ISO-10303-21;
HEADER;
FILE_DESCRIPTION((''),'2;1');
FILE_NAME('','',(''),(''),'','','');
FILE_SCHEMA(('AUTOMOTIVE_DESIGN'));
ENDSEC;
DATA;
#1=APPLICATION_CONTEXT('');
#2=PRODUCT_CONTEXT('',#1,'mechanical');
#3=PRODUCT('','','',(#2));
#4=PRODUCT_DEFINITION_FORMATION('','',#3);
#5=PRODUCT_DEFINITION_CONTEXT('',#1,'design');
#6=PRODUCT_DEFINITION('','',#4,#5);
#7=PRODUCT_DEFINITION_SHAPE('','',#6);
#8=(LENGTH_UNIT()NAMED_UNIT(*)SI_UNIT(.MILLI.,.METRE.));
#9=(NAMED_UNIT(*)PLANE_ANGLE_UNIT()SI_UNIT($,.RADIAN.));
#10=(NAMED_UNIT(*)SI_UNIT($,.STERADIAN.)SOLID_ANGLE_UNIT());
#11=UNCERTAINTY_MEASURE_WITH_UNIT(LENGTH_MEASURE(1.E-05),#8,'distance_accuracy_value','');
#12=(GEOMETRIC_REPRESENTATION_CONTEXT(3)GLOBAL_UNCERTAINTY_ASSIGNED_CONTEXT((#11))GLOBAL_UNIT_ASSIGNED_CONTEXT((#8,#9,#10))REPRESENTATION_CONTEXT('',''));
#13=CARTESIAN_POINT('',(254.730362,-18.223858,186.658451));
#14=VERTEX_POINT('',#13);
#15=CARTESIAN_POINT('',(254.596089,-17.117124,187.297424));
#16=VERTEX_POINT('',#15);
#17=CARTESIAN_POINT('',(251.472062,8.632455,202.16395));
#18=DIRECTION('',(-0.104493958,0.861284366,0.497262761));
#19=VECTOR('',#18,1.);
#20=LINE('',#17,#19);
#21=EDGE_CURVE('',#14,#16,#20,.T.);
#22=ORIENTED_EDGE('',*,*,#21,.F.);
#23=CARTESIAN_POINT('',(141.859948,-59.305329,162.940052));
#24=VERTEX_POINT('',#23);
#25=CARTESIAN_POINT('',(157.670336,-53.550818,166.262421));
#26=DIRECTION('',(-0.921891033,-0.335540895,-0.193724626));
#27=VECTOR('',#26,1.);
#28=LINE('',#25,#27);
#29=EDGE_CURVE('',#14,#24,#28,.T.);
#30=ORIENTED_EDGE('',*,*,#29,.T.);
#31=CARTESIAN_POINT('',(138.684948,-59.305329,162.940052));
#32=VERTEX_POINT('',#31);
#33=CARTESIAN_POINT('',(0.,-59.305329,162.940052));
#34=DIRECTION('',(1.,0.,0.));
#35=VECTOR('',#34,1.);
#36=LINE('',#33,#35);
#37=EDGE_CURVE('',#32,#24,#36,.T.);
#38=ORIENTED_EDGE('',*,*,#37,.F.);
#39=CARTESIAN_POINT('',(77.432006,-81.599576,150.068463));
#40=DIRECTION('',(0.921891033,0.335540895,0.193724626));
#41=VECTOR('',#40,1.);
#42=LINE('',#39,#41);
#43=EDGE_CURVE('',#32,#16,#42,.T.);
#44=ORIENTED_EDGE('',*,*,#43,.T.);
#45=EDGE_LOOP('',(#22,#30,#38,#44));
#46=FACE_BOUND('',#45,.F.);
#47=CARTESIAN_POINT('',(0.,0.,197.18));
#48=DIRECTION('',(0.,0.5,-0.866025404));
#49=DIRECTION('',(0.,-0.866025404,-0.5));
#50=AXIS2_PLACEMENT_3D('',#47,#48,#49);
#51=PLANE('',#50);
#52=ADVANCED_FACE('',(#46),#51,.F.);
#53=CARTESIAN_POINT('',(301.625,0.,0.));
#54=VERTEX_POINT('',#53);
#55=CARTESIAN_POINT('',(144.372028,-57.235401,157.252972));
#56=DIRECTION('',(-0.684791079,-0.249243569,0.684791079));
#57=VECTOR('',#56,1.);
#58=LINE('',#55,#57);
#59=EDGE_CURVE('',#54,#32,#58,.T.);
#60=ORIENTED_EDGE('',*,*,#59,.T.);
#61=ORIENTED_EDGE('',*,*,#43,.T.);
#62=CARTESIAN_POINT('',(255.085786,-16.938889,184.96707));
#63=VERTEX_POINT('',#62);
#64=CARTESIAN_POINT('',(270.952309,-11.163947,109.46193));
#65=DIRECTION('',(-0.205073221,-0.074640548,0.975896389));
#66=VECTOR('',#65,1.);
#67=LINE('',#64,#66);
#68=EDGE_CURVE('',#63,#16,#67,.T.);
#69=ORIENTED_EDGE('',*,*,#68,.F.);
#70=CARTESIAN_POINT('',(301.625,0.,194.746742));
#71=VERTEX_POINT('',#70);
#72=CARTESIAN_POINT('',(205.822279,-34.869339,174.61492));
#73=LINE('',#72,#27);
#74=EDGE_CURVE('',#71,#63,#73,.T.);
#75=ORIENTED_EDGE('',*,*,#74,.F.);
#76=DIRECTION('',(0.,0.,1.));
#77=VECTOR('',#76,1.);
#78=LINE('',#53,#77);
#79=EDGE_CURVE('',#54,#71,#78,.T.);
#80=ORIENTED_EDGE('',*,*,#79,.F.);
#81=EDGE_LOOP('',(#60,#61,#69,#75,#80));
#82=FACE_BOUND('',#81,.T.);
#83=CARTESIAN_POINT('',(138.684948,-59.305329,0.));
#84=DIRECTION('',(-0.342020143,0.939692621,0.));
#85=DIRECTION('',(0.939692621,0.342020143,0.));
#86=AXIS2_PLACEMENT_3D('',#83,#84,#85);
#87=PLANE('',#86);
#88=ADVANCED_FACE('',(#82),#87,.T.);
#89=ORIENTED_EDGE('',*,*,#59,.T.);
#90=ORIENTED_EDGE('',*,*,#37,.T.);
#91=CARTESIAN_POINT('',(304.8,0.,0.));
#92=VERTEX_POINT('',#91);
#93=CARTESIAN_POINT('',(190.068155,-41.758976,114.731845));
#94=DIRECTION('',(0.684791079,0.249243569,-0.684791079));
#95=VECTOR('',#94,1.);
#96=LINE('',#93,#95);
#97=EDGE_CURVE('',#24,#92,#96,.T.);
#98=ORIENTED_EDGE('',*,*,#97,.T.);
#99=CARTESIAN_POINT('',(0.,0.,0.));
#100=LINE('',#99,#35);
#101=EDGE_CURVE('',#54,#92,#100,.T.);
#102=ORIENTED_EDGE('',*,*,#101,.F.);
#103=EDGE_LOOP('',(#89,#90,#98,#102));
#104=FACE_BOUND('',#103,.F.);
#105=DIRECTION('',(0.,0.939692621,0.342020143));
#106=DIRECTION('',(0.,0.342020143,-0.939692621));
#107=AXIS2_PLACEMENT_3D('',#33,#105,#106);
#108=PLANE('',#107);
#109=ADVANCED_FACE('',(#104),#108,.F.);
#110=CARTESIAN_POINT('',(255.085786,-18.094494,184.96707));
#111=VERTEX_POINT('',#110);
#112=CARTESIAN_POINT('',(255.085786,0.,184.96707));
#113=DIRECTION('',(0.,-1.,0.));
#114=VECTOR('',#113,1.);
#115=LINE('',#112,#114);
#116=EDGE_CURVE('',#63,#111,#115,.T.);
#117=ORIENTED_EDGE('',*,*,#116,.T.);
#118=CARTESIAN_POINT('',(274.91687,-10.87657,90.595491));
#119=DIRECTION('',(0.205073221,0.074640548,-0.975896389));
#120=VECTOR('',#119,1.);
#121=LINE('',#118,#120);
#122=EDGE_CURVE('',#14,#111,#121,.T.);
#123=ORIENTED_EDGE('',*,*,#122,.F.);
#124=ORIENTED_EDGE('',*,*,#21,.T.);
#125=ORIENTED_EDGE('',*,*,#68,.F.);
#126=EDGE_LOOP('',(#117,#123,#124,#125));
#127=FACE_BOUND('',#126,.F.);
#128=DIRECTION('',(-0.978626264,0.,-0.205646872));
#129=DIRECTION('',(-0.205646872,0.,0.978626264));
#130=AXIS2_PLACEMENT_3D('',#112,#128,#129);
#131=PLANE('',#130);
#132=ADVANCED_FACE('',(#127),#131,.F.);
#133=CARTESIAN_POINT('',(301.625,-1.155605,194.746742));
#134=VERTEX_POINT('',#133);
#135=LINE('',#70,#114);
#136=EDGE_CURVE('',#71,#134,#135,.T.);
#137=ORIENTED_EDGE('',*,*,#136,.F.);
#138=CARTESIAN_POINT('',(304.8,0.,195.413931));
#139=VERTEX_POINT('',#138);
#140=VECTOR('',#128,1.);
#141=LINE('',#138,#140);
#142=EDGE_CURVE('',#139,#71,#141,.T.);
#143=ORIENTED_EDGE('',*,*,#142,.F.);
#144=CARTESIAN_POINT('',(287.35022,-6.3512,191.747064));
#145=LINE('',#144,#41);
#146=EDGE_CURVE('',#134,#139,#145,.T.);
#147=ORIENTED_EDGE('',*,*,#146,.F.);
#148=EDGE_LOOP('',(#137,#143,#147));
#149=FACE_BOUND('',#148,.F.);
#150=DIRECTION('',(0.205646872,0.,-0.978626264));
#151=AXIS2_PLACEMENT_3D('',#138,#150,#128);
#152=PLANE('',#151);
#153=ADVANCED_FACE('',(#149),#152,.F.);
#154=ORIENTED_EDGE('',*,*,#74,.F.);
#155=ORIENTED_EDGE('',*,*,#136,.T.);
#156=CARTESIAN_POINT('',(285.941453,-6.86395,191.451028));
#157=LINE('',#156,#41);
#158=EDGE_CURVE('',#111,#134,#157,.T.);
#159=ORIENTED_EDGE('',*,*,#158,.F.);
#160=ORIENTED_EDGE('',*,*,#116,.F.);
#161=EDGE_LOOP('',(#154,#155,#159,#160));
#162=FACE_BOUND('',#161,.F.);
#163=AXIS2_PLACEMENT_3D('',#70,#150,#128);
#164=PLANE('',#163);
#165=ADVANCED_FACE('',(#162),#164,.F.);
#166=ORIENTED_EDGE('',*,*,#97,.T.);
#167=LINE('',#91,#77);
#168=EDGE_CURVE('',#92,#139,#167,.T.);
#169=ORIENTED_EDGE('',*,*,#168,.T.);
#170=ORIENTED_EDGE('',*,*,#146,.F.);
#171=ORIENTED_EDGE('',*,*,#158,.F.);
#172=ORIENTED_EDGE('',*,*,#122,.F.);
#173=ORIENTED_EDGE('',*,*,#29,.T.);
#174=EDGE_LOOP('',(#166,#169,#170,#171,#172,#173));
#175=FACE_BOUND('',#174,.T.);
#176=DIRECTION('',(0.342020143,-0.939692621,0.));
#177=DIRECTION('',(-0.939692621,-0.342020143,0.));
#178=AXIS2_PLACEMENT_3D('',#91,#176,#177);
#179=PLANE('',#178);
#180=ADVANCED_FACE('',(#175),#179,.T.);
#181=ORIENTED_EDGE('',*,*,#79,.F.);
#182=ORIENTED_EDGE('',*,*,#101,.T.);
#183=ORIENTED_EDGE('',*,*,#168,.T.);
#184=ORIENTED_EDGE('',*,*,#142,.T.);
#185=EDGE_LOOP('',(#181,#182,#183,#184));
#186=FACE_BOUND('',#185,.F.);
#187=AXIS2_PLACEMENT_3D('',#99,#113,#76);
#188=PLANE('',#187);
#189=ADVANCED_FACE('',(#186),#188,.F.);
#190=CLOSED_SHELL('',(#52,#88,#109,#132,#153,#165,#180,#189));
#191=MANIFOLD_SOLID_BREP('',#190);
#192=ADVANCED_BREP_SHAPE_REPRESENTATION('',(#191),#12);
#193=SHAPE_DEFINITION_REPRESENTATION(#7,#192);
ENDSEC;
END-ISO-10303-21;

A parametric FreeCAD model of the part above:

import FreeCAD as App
import Part
import Sketcher
Q = App.Units.Quantity


def add_polygon(sketch, points):
    """Adds a closed chain of lines whose ends are joined by coincident constraints."""
    first, n = sketch.GeometryCount, len(points)
    for a, b in zip(points, points[1:] + points[:1]):
        sketch.addGeometry(Part.LineSegment(App.Vector(*a, 0), App.Vector(*b, 0)), False)
    for i in range(n):
        sketch.addConstraint(Sketcher.Constraint("Coincident", first + i, 2, first + (i + 1) % n, 1))

doc = App.newDocument("Part")
body = doc.addObject("PartDesign::Body", "Body")

# Sketch on YZ plane
sketch1 = doc.addObject("Sketcher::SketchObject", "Sketch")
body.addObject(sketch1)
sketch1.AttachmentSupport = (doc.YZ_Plane, [""])
sketch1.MapMode = "FlatFace"
add_polygon(sketch1, [(0, 0), (0, 197), (-59, 163)])  # lines 0-2
sketch1.addConstraint([
    Sketcher.Constraint("Vertical", 0),
    Sketcher.Constraint("Coincident", 2, 2, -1, 1),
    Sketcher.Constraint("Angle", 1, Q("-150 deg")),
    Sketcher.Constraint("Angle", 2, Q("-70 deg")),
    Sketcher.Constraint("DistanceY", 0, 1, 0, 2, Q("197.18 mm")),
])
pad1 = doc.addObject("PartDesign::Pad", "Pad")
body.addObject(pad1)
pad1.Profile = sketch1
pad1.Length = Q("12 in")

# Sketch on XY plane
sketch2 = doc.addObject("Sketcher::SketchObject", "Sketch001")
body.addObject(sketch2)
sketch2.AttachmentSupport = (doc.XY_Plane, [""])
sketch2.MapMode = "FlatFace"
add_polygon(sketch2, [(139, -59), (302, 0), (0, 0), (0, -59)])  # lines 0-3
add_polygon(sketch2, [(305, 0), (142, -59), (305, -59)])  # lines 4-6
sketch2.addConstraint([
    Sketcher.Constraint("Horizontal", 1),
    Sketcher.Constraint("Vertical", 2),
    Sketcher.Constraint("Horizontal", 3),
    Sketcher.Constraint("Horizontal", 5),
    Sketcher.Constraint("Vertical", 6),
    Sketcher.Constraint("Coincident", 1, 2, -1, 1),
    Sketcher.Constraint("PointOnObject", 6, 2, -1),
    Sketcher.Constraint("Parallel", 0, 4),
    Sketcher.Constraint("Horizontal", 3, 2, 4, 2),
    Sketcher.Constraint("DistanceX", -1, 1, 5, 2, Q("12 in")),
    Sketcher.Constraint("Angle", 0, Q("20 deg")),
    Sketcher.Constraint("DistanceX", 1, 2, 1, 1, Q("11.875 in")),
    Sketcher.Constraint("DistanceY", 2, 2, 2, 1, Q("59.305329 mm")),
])
pocket1 = doc.addObject("PartDesign::Pocket", "Pocket")
body.addObject(pocket1)
pocket1.Profile = sketch2
pocket1.Type = "ThroughAll"
pocket1.Midplane = True

# Sketch on XZ plane
sketch3 = doc.addObject("Sketcher::SketchObject", "Sketch002")
body.addObject(sketch3)
sketch3.AttachmentSupport = (doc.XZ_Plane, [""])
sketch3.MapMode = "FlatFace"
add_polygon(sketch3, [(254.6, 187.3), (301.6, 197.2), (304.8, 197.2), (304.8, 195.4), (301.6, 194.7), (255.1, 185)])  # lines 0-5
sketch3.addConstraint([
    Sketcher.Constraint("Horizontal", 1),
    Sketcher.Constraint("Vertical", 2),
    Sketcher.Constraint("Parallel", 0, 3),
    Sketcher.Constraint("Parallel", 3, 4),
    Sketcher.Constraint("Perpendicular", 4, 5),
    Sketcher.Constraint("Vertical", 0, 2, 3, 2),
    Sketcher.Constraint("DistanceX", -1, 1, 1, 2, Q("12 in")),
    Sketcher.Constraint("DistanceX", 1, 1, 1, 2, Q("0.125 in")),
    Sketcher.Constraint("Distance", 5, Q("0.09375 in")),
    Sketcher.Constraint("DistanceY", 2, 2, 2, 1, Q("1.766069 mm")),
    Sketcher.Constraint("DistanceY", -1, 1, 0, 2, Q("197.18 mm")),
    Sketcher.Constraint("Distance", 0, Q("48.056048 mm")),
])
pocket2 = doc.addObject("PartDesign::Pocket", "Pocket001")
body.addObject(pocket2)
pocket2.Profile = sketch3
pocket2.Type = "ThroughAll"
pocket2.Reversed = True

doc.recompute()
